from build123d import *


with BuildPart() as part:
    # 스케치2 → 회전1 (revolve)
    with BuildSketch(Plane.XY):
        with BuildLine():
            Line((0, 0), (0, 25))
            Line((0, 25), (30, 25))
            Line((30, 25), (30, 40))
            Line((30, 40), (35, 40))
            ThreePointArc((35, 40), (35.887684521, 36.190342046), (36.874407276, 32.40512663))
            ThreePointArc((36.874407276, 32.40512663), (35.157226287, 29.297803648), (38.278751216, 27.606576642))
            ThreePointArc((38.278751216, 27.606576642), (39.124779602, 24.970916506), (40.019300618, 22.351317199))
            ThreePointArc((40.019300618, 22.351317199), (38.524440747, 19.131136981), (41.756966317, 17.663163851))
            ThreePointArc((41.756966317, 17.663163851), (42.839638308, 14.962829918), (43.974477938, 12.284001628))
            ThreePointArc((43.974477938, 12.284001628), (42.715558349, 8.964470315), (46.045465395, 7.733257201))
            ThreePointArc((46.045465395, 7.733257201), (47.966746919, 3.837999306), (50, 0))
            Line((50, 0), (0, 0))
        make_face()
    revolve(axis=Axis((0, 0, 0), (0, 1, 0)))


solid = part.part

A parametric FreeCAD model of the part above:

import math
import FreeCAD as App
import Part
import Sketcher
Q = App.Units.Quantity

doc = App.newDocument("Part")
params = doc.addObject("Spreadsheet::Sheet", "Params")
for row, (alias, value) in enumerate([
    ("sketch1_radius", "150.000001 mm"),
    ("sketch1_radius2", "149.999998 mm"),
    ("sketch1_radius3", "2.5 mm"),
    ("sketch1_width", "50 mm"),
    ("sketch1_width2", "5 mm"),
    ("revolution_angle", "360 deg"),
], start=1):
    params.set(f"A{row}", alias)
    params.set(f"B{row}", "=" + value)
    params.setAlias(f"B{row}", alias)

body = doc.addObject("PartDesign::Body", "Body")

# Sketch on XY plane
sketch1 = body.newObject("Sketcher::SketchObject", "Sketch")
sketch1.AttachmentSupport = (doc.getObject("XY_Plane"), [""])
sketch1.MapMode = "FlatFace"
sketch1.addGeometry([
    Part.LineSegment(App.Vector(0, 25, 0), App.Vector(0, 0, 0)),  # 0
    Part.LineSegment(App.Vector(0, 0, 0), App.Vector(50, 0, 0)),  # 1
    Part.ArcOfCircle(Part.Circle(App.Vector(181.518084, 72.131782, 0), App.Vector(0, 0, 1), 150.000001), math.radians(-154.575365), math.radians(-151.257203)),  # 2
    Part.ArcOfCircle(Part.Circle(App.Vector(44.99101, 10, 0), App.Vector(0, 0, 1), 2.5), math.radians(113.992224), math.radians(294.947165)),  # 3
    Part.ArcOfCircle(Part.Circle(App.Vector(181.518081, 72.13178, 0), App.Vector(0, 0, 1), 149.999998), math.radians(-158.707817), math.radians(-156.485246)),  # 4
    Part.ArcOfCircle(Part.Circle(App.Vector(40.868599, 20, 0), App.Vector(0, 0, 1), 2.5), math.radians(109.859772), math.radians(290.814713)),  # 5
    Part.ArcOfCircle(Part.Circle(App.Vector(181.518083, 72.131781, 0), App.Vector(0, 0, 1), 150), math.radians(-162.732414), math.radians(-160.617698)),  # 6
    Part.ArcOfCircle(Part.Circle(App.Vector(37.556585, 30, 0), App.Vector(0, 0, 1), 2.5), math.radians(105.835175), math.radians(286.790116)),  # 7
    Part.ArcOfCircle(Part.Circle(App.Vector(181.518084, 72.131781, 0), App.Vector(0, 0, 1), 150.000001), math.radians(-167.630706), math.radians(-164.642295)),  # 8
    Part.LineSegment(App.Vector(35, 40, 0), App.Vector(30, 40, 0)),  # 9
    Part.LineSegment(App.Vector(30, 40, 0), App.Vector(30, 25, 0)),  # 10
    Part.LineSegment(App.Vector(30, 25, 0), App.Vector(0, 25, 0)),  # 11
], False)
sketch1.addConstraint([
    Sketcher.Constraint("Coincident", 0, 2, 1, 1),
    Sketcher.Constraint("Coincident", 1, 2, 2, 2),
    Sketcher.Constraint("Coincident", 2, 1, 3, 2),
    Sketcher.Constraint("Coincident", 3, 1, 4, 2),
    Sketcher.Constraint("Coincident", 4, 1, 5, 2),
    Sketcher.Constraint("Coincident", 5, 1, 6, 2),
    Sketcher.Constraint("Coincident", 6, 1, 7, 2),
    Sketcher.Constraint("Coincident", 7, 1, 8, 2),
    Sketcher.Constraint("Coincident", 8, 1, 9, 1),
    Sketcher.Constraint("Coincident", 9, 2, 10, 1),
    Sketcher.Constraint("Coincident", 10, 2, 11, 1),
    Sketcher.Constraint("Coincident", 11, 2, 0, 1),
    Sketcher.Constraint("Vertical", 0),
    Sketcher.Constraint("Horizontal", 1),
    Sketcher.Constraint("Horizontal", 9),
    Sketcher.Constraint("Vertical", 10),
    Sketcher.Constraint("Horizontal", 11),
    Sketcher.Constraint("Coincident", 0, 2, -1, 1),
    Sketcher.Constraint("Coincident", 4, 3, 2, 3),
    Sketcher.Constraint("Coincident", 6, 3, 2, 3),
    Sketcher.Constraint("Coincident", 8, 3, 2, 3),
    Sketcher.Constraint("Equal", 3, 5),
    Sketcher.Constraint("Equal", 2, 6),
    Sketcher.Constraint("Equal", 5, 7),
    Sketcher.Constraint("Equal", 6, 8),
    Sketcher.Constraint("Radius", 2, Q("150.000001 mm")),
    Sketcher.Constraint("Radius", 4, Q("149.999998 mm")),
    Sketcher.Constraint("Radius", 3, Q("2.5 mm")),
    Sketcher.Constraint("DistanceX", 1, 1, 1, 2, Q("50 mm")),
    Sketcher.Constraint("DistanceX", 9, 2, 9, 1, Q("5 mm")),
    Sketcher.Constraint("DistanceX", 11, 2, 11, 1, Q("30 mm")),
    Sketcher.Constraint("DistanceY", 0, 2, 0, 1, Q("25 mm")),
    Sketcher.Constraint("DistanceY", 10, 2, 10, 1, Q("15 mm")),
    Sketcher.Constraint("DistanceY", -1, 1, 3, 3, Q("10 mm")),
    Sketcher.Constraint("DistanceY", -1, 1, 5, 3, Q("20 mm")),
    Sketcher.Constraint("DistanceY", -1, 1, 7, 3, Q("30 mm")),
    Sketcher.Constraint("DistanceY", -1, 1, 3, 1, Q("12.284002 mm")),
    Sketcher.Constraint("DistanceX", -1, 1, 5, 3, Q("40.868599 mm")),
    Sketcher.Constraint("DistanceX", 7, 3, 6, 3, Q("143.961499 mm")),
])
sketch1.setExpression("Constraints[25]", "Params.sketch1_radius")
sketch1.setExpression("Constraints[26]", "Params.sketch1_radius2")
sketch1.setExpression("Constraints[27]", "Params.sketch1_radius3")
sketch1.setExpression("Constraints[28]", "Params.sketch1_width")
sketch1.setExpression("Constraints[29]", "Params.sketch1_width2")
revolution = body.newObject("PartDesign::Revolution", "Revolution")
revolution.Profile = sketch1
revolution.ReferenceAxis = (sketch1, ["V_Axis"])
revolution.setExpression("Angle", "Params.revolution_angle")

doc.recompute()
